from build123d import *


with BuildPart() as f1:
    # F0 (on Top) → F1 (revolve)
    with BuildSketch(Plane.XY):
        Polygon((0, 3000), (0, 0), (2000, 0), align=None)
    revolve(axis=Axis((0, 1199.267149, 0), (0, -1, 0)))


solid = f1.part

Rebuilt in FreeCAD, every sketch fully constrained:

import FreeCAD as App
import Part
import Sketcher
from FreeCAD import Vector

doc = App.newDocument("Part")
body = doc.addObject("PartDesign::Body", "Body")

sketch1 = body.newObject("Sketcher::SketchObject", "Sketch")
sketch1.AttachmentSupport = (doc.getObject("XY_Plane"), [""])
sketch1.MapMode = "FlatFace"
sketch1.addGeometry(Part.LineSegment(Vector(0, 3000, 0), Vector(0, 0, 0)), False)
sketch1.addGeometry(Part.LineSegment(Vector(0, 0, 0), Vector(2000, 0, 0)), False)
sketch1.addGeometry(Part.LineSegment(Vector(2000, 0, 0), Vector(0, 3000, 0)), False)
sketch1.addConstraint(Sketcher.Constraint("Coincident", 0, 2, 1, 1))
sketch1.addConstraint(Sketcher.Constraint("Coincident", 1, 2, 2, 1))
sketch1.addConstraint(Sketcher.Constraint("Coincident", 2, 2, 0, 1))
sketch1.addConstraint(Sketcher.Constraint("Vertical", 0))
sketch1.addConstraint(Sketcher.Constraint("Horizontal", 1))
sketch1.addConstraint(Sketcher.Constraint("Coincident", 0, 2, -1, 1))
sketch1.addConstraint(Sketcher.Constraint("DistanceX", 1, 1, 1, 2, 2000.0))
sketch1.addConstraint(Sketcher.Constraint("DistanceY", 0, 2, 0, 1, 3000.0))
revolution = body.newObject("PartDesign::Revolution", "Revolution")
revolution.Profile = sketch1
revolution.ReferenceAxis = (sketch1, ["V_Axis"])
revolution.Angle = 360

doc.recompute()
